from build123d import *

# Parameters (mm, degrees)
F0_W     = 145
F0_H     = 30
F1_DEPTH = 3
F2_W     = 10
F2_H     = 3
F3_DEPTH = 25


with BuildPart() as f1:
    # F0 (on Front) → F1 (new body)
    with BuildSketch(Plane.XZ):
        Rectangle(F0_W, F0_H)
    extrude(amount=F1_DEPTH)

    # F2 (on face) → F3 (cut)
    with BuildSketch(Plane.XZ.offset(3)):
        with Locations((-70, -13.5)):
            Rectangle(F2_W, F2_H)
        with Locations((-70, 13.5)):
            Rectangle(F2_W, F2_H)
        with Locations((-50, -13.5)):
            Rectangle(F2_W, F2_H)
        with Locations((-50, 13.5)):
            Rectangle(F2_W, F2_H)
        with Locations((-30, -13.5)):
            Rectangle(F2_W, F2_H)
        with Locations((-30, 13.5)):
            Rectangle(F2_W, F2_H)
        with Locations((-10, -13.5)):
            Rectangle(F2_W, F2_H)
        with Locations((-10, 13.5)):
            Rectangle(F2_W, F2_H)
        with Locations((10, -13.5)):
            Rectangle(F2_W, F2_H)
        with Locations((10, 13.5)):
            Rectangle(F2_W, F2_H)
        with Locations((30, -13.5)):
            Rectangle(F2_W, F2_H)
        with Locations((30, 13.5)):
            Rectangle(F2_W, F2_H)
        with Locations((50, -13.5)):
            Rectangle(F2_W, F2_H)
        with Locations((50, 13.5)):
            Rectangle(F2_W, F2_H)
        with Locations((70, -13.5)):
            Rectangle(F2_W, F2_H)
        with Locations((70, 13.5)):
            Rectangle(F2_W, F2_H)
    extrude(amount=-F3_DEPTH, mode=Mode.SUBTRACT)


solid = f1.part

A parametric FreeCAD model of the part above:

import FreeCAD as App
import Part
import Sketcher
from FreeCAD import Vector
Q = App.Units.Quantity

doc = App.newDocument("Part")
body = doc.addObject("PartDesign::Body", "Body")

# Sketch on XZ plane
sketch1 = doc.addObject("Sketcher::SketchObject", "Sketch")
body.addObject(sketch1)
sketch1.AttachmentSupport = (doc.XZ_Plane, [""])
sketch1.MapMode = "FlatFace"
sketch1.addGeometry([
    Part.LineSegment(Vector(-72, 15, 0), Vector(-72, -15, 0)),
    Part.LineSegment(Vector(-72, -15, 0), Vector(72, -15, 0)),
    Part.LineSegment(Vector(72, -15, 0), Vector(72, 15, 0)),
    Part.LineSegment(Vector(72, 15, 0), Vector(-72, 15, 0)),
], False)
sketch1.addConstraint([
    Sketcher.Constraint("Coincident", 0, 2, 1, 1),
    Sketcher.Constraint("Coincident", 1, 2, 2, 1),
    Sketcher.Constraint("Coincident", 2, 2, 3, 1),
    Sketcher.Constraint("Coincident", 3, 2, 0, 1),
    Sketcher.Constraint("Vertical", 0),
    Sketcher.Constraint("Horizontal", 1),
    Sketcher.Constraint("Vertical", 2),
    Sketcher.Constraint("Horizontal", 3),
    Sketcher.Constraint("Symmetric", 0, 2, 2, 2, -1, 1),
    Sketcher.Constraint("DistanceX", 1, 1, 1, 2, Q("145 mm")),
    Sketcher.Constraint("DistanceY", 0, 2, 0, 1, Q("30 mm")),
])
pad1 = doc.addObject("PartDesign::Pad", "Pad")
body.addObject(pad1)
pad1.Profile = sketch1
pad1.Length = 3

# Sketch on XZ plane
sketch2 = doc.addObject("Sketcher::SketchObject", "Sketch001")
body.addObject(sketch2)
sketch2.AttachmentSupport = (doc.XZ_Plane, [""])
sketch2.MapMode = "FlatFace"
sketch2.AttachmentOffset = App.Placement(Vector(0, 0, 3), App.Rotation())
sketch2.addGeometry([
    Part.LineSegment(Vector(-75, -12, 0), Vector(-75, -15, 0)),  # 0
    Part.LineSegment(Vector(-75, -15, 0), Vector(-65, -15, 0)),  # 1
    Part.LineSegment(Vector(-65, -15, 0), Vector(-65, -12, 0)),  # 2
    Part.LineSegment(Vector(-65, -12, 0), Vector(-75, -12, 0)),  # 3
    Part.LineSegment(Vector(-75, 15, 0), Vector(-75, 12, 0)),  # 4
    Part.LineSegment(Vector(-75, 12, 0), Vector(-65, 12, 0)),  # 5
    Part.LineSegment(Vector(-65, 12, 0), Vector(-65, 15, 0)),  # 6
    Part.LineSegment(Vector(-65, 15, 0), Vector(-75, 15, 0)),  # 7
    Part.LineSegment(Vector(-55, -12, 0), Vector(-55, -15, 0)),  # 8
    Part.LineSegment(Vector(-55, -15, 0), Vector(-45, -15, 0)),  # 9
    Part.LineSegment(Vector(-45, -15, 0), Vector(-45, -12, 0)),  # 10
    Part.LineSegment(Vector(-45, -12, 0), Vector(-55, -12, 0)),  # 11
    Part.LineSegment(Vector(-55, 15, 0), Vector(-55, 12, 0)),  # 12
    Part.LineSegment(Vector(-55, 12, 0), Vector(-45, 12, 0)),  # 13
    Part.LineSegment(Vector(-45, 12, 0), Vector(-45, 15, 0)),  # 14
    Part.LineSegment(Vector(-45, 15, 0), Vector(-55, 15, 0)),  # 15
    Part.LineSegment(Vector(-35, -12, 0), Vector(-35, -15, 0)),  # 16
    Part.LineSegment(Vector(-35, -15, 0), Vector(-25, -15, 0)),  # 17
    Part.LineSegment(Vector(-25, -15, 0), Vector(-25, -12, 0)),  # 18
    Part.LineSegment(Vector(-25, -12, 0), Vector(-35, -12, 0)),  # 19
    Part.LineSegment(Vector(-35, 15, 0), Vector(-35, 12, 0)),  # 20
    Part.LineSegment(Vector(-35, 12, 0), Vector(-25, 12, 0)),  # 21
    Part.LineSegment(Vector(-25, 12, 0), Vector(-25, 15, 0)),  # 22
    Part.LineSegment(Vector(-25, 15, 0), Vector(-35, 15, 0)),  # 23
    Part.LineSegment(Vector(-15, -12, 0), Vector(-15, -15, 0)),  # 24
    Part.LineSegment(Vector(-15, -15, 0), Vector(-5, -15, 0)),  # 25
    Part.LineSegment(Vector(-5, -15, 0), Vector(-5, -12, 0)),  # 26
    Part.LineSegment(Vector(-5, -12, 0), Vector(-15, -12, 0)),  # 27
    Part.LineSegment(Vector(-15, 15, 0), Vector(-15, 12, 0)),  # 28
    Part.LineSegment(Vector(-15, 12, 0), Vector(-5, 12, 0)),  # 29
    Part.LineSegment(Vector(-5, 12, 0), Vector(-5, 15, 0)),  # 30
    Part.LineSegment(Vector(-5, 15, 0), Vector(-15, 15, 0)),  # 31
    Part.LineSegment(Vector(5, -12, 0), Vector(5, -15, 0)),  # 32
    Part.LineSegment(Vector(5, -15, 0), Vector(15, -15, 0)),  # 33
    Part.LineSegment(Vector(15, -15, 0), Vector(15, -12, 0)),  # 34
    Part.LineSegment(Vector(15, -12, 0), Vector(5, -12, 0)),  # 35
    Part.LineSegment(Vector(5, 15, 0), Vector(5, 12, 0)),  # 36
    Part.LineSegment(Vector(5, 12, 0), Vector(15, 12, 0)),  # 37
    Part.LineSegment(Vector(15, 12, 0), Vector(15, 15, 0)),  # 38
    Part.LineSegment(Vector(15, 15, 0), Vector(5, 15, 0)),  # 39
    Part.LineSegment(Vector(25, -12, 0), Vector(25, -15, 0)),  # 40
    Part.LineSegment(Vector(25, -15, 0), Vector(35, -15, 0)),  # 41
    Part.LineSegment(Vector(35, -15, 0), Vector(35, -12, 0)),  # 42
    Part.LineSegment(Vector(35, -12, 0), Vector(25, -12, 0)),  # 43
    Part.LineSegment(Vector(25, 15, 0), Vector(25, 12, 0)),  # 44
    Part.LineSegment(Vector(25, 12, 0), Vector(35, 12, 0)),  # 45
    Part.LineSegment(Vector(35, 12, 0), Vector(35, 15, 0)),  # 46
    Part.LineSegment(Vector(35, 15, 0), Vector(25, 15, 0)),  # 47
    Part.LineSegment(Vector(45, -12, 0), Vector(45, -15, 0)),  # 48
    Part.LineSegment(Vector(45, -15, 0), Vector(55, -15, 0)),  # 49
    Part.LineSegment(Vector(55, -15, 0), Vector(55, -12, 0)),  # 50
    Part.LineSegment(Vector(55, -12, 0), Vector(45, -12, 0)),  # 51
    Part.LineSegment(Vector(45, 15, 0), Vector(45, 12, 0)),  # 52
    Part.LineSegment(Vector(45, 12, 0), Vector(55, 12, 0)),  # 53
    Part.LineSegment(Vector(55, 12, 0), Vector(55, 15, 0)),  # 54
    Part.LineSegment(Vector(55, 15, 0), Vector(45, 15, 0)),  # 55
    Part.LineSegment(Vector(65, -12, 0), Vector(65, -15, 0)),  # 56
    Part.LineSegment(Vector(65, -15, 0), Vector(75, -15, 0)),  # 57
    Part.LineSegment(Vector(75, -15, 0), Vector(75, -12, 0)),  # 58
    Part.LineSegment(Vector(75, -12, 0), Vector(65, -12, 0)),  # 59
    Part.LineSegment(Vector(65, 15, 0), Vector(65, 12, 0)),  # 60
    Part.LineSegment(Vector(65, 12, 0), Vector(75, 12, 0)),  # 61
    Part.LineSegment(Vector(75, 12, 0), Vector(75, 15, 0)),  # 62
    Part.LineSegment(Vector(75, 15, 0), Vector(65, 15, 0)),  # 63
], False)
sketch2.addConstraint([
    Sketcher.Constraint("Coincident", 0, 2, 1, 1),
    Sketcher.Constraint("Coincident", 1, 2, 2, 1),
    Sketcher.Constraint("Coincident", 2, 2, 3, 1),
    Sketcher.Constraint("Coincident", 3, 2, 0, 1),
    Sketcher.Constraint("Coincident", 4, 2, 5, 1),
    Sketcher.Constraint("Coincident", 5, 2, 6, 1),
    Sketcher.Constraint("Coincident", 6, 2, 7, 1),
    Sketcher.Constraint("Coincident", 7, 2, 4, 1),
    Sketcher.Constraint("Coincident", 8, 2, 9, 1),
    Sketcher.Constraint("Coincident", 9, 2, 10, 1),
    Sketcher.Constraint("Coincident", 10, 2, 11, 1),
    Sketcher.Constraint("Coincident", 11, 2, 8, 1),
    Sketcher.Constraint("Coincident", 12, 2, 13, 1),
    Sketcher.Constraint("Coincident", 13, 2, 14, 1),
    Sketcher.Constraint("Coincident", 14, 2, 15, 1),
    Sketcher.Constraint("Coincident", 15, 2, 12, 1),
    Sketcher.Constraint("Coincident", 16, 2, 17, 1),
    Sketcher.Constraint("Coincident", 17, 2, 18, 1),
    Sketcher.Constraint("Coincident", 18, 2, 19, 1),
    Sketcher.Constraint("Coincident", 19, 2, 16, 1),
    Sketcher.Constraint("Coincident", 20, 2, 21, 1),
    Sketcher.Constraint("Coincident", 21, 2, 22, 1),
    Sketcher.Constraint("Coincident", 22, 2, 23, 1),
    Sketcher.Constraint("Coincident", 23, 2, 20, 1),
    Sketcher.Constraint("Coincident", 24, 2, 25, 1),
    Sketcher.Constraint("Coincident", 25, 2, 26, 1),
    Sketcher.Constraint("Coincident", 26, 2, 27, 1),
    Sketcher.Constraint("Coincident", 27, 2, 24, 1),
    Sketcher.Constraint("Coincident", 28, 2, 29, 1),
    Sketcher.Constraint("Coincident", 29, 2, 30, 1),
    Sketcher.Constraint("Coincident", 30, 2, 31, 1),
    Sketcher.Constraint("Coincident", 31, 2, 28, 1),
    Sketcher.Constraint("Coincident", 32, 2, 33, 1),
    Sketcher.Constraint("Coincident", 33, 2, 34, 1),
    Sketcher.Constraint("Coincident", 34, 2, 35, 1),
    Sketcher.Constraint("Coincident", 35, 2, 32, 1),
    Sketcher.Constraint("Coincident", 36, 2, 37, 1),
    Sketcher.Constraint("Coincident", 37, 2, 38, 1),
    Sketcher.Constraint("Coincident", 38, 2, 39, 1),
    Sketcher.Constraint("Coincident", 39, 2, 36, 1),
    Sketcher.Constraint("Coincident", 40, 2, 41, 1),
    Sketcher.Constraint("Coincident", 41, 2, 42, 1),
    Sketcher.Constraint("Coincident", 42, 2, 43, 1),
    Sketcher.Constraint("Coincident", 43, 2, 40, 1),
    Sketcher.Constraint("Coincident", 44, 2, 45, 1),
    Sketcher.Constraint("Coincident", 45, 2, 46, 1),
    Sketcher.Constraint("Coincident", 46, 2, 47, 1),
    Sketcher.Constraint("Coincident", 47, 2, 44, 1),
    Sketcher.Constraint("Coincident", 48, 2, 49, 1),
    Sketcher.Constraint("Coincident", 49, 2, 50, 1),
    Sketcher.Constraint("Coincident", 50, 2, 51, 1),
    Sketcher.Constraint("Coincident", 51, 2, 48, 1),
    Sketcher.Constraint("Coincident", 52, 2, 53, 1),
    Sketcher.Constraint("Coincident", 53, 2, 54, 1),
    Sketcher.Constraint("Coincident", 54, 2, 55, 1),
    Sketcher.Constraint("Coincident", 55, 2, 52, 1),
    Sketcher.Constraint("Coincident", 56, 2, 57, 1),
    Sketcher.Constraint("Coincident", 57, 2, 58, 1),
    Sketcher.Constraint("Coincident", 58, 2, 59, 1),
    Sketcher.Constraint("Coincident", 59, 2, 56, 1),
    Sketcher.Constraint("Coincident", 60, 2, 61, 1),
    Sketcher.Constraint("Coincident", 61, 2, 62, 1),
    Sketcher.Constraint("Coincident", 62, 2, 63, 1),
    Sketcher.Constraint("Coincident", 63, 2, 60, 1),
    Sketcher.Constraint("Vertical", 0),
    Sketcher.Constraint("Horizontal", 1),
    Sketcher.Constraint("Vertical", 2),
    Sketcher.Constraint("Horizontal", 3),
    Sketcher.Constraint("Vertical", 4),
    Sketcher.Constraint("Horizontal", 5),
    Sketcher.Constraint("Vertical", 6),
    Sketcher.Constraint("Horizontal", 7),
    Sketcher.Constraint("Vertical", 8),
    Sketcher.Constraint("Horizontal", 9),
    Sketcher.Constraint("Vertical", 10),
    Sketcher.Constraint("Horizontal", 11),
    Sketcher.Constraint("Vertical", 12),
    Sketcher.Constraint("Horizontal", 13),
    Sketcher.Constraint("Vertical", 14),
    Sketcher.Constraint("Horizontal", 15),
    Sketcher.Constraint("Vertical", 16),
    Sketcher.Constraint("Horizontal", 17),
    Sketcher.Constraint("Vertical", 18),
    Sketcher.Constraint("Horizontal", 19),
    Sketcher.Constraint("Vertical", 20),
    Sketcher.Constraint("Horizontal", 21),
    Sketcher.Constraint("Vertical", 22),
    Sketcher.Constraint("Horizontal", 23),
    Sketcher.Constraint("Vertical", 24),
    Sketcher.Constraint("Horizontal", 25),
    Sketcher.Constraint("Vertical", 26),
    Sketcher.Constraint("Horizontal", 27),
    Sketcher.Constraint("Vertical", 28),
    Sketcher.Constraint("Horizontal", 29),
    Sketcher.Constraint("Vertical", 30),
    Sketcher.Constraint("Horizontal", 31),
    Sketcher.Constraint("Vertical", 32),
    Sketcher.Constraint("Horizontal", 33),
    Sketcher.Constraint("Vertical", 34),
    Sketcher.Constraint("Horizontal", 35),
    Sketcher.Constraint("Vertical", 36),
    Sketcher.Constraint("Horizontal", 37),
    Sketcher.Constraint("Vertical", 38),
    Sketcher.Constraint("Horizontal", 39),
    Sketcher.Constraint("Vertical", 40),
    Sketcher.Constraint("Horizontal", 41),
    Sketcher.Constraint("Vertical", 42),
    Sketcher.Constraint("Horizontal", 43),
    Sketcher.Constraint("Vertical", 44),
    Sketcher.Constraint("Horizontal", 45),
    Sketcher.Constraint("Vertical", 46),
    Sketcher.Constraint("Horizontal", 47),
    Sketcher.Constraint("Vertical", 48),
    Sketcher.Constraint("Horizontal", 49),
    Sketcher.Constraint("Vertical", 50),
    Sketcher.Constraint("Horizontal", 51),
    Sketcher.Constraint("Vertical", 52),
    Sketcher.Constraint("Horizontal", 53),
    Sketcher.Constraint("Vertical", 54),
    Sketcher.Constraint("Horizontal", 55),
    Sketcher.Constraint("Vertical", 56),
    Sketcher.Constraint("Horizontal", 57),
    Sketcher.Constraint("Vertical", 58),
    Sketcher.Constraint("Horizontal", 59),
    Sketcher.Constraint("Vertical", 60),
    Sketcher.Constraint("Horizontal", 61),
    Sketcher.Constraint("Vertical", 62),
    Sketcher.Constraint("Horizontal", 63),
    Sketcher.Constraint("Symmetric", 30, 2, 32, 2, -1, 1),
    Sketcher.Constraint("Symmetric", 28, 2, 34, 2, -1, 1),
    Sketcher.Constraint("Symmetric", 26, 2, 36, 2, -1, 1),
    Sketcher.Constraint("Symmetric", 24, 2, 38, 2, -1, 1),
    Sketcher.Constraint("Symmetric", 22, 2, 40, 2, -1, 1),
    Sketcher.Constraint("Symmetric", 20, 2, 42, 2, -1, 1),
    Sketcher.Constraint("Symmetric", 18, 2, 44, 2, -1, 1),
    Sketcher.Constraint("Symmetric", 16, 2, 46, 2, -1, 1),
    Sketcher.Constraint("Symmetric", 14, 2, 48, 2, -1, 1),
    Sketcher.Constraint("Symmetric", 12, 2, 50, 2, -1, 1),
    Sketcher.Constraint("Symmetric", 10, 2, 52, 2, -1, 1),
    Sketcher.Constraint("Symmetric", 8, 2, 54, 2, -1, 1),
    Sketcher.Constraint("Symmetric", 6, 2, 56, 2, -1, 1),
    Sketcher.Constraint("Symmetric", 4, 2, 58, 2, -1, 1),
    Sketcher.Constraint("Symmetric", 2, 2, 60, 2, -1, 1),
    Sketcher.Constraint("Symmetric", 0, 2, 62, 2, -1, 1),
    Sketcher.Constraint("Symmetric", 25, 2, 32, 2, -2),
    Sketcher.Constraint("Symmetric", 27, 2, 34, 2, -2),
    Sketcher.Constraint("Symmetric", 17, 2, 40, 2, -2),
    Sketcher.Constraint("Symmetric", 19, 2, 42, 2, -2),
    Sketcher.Constraint("Symmetric", 9, 2, 48, 2, -2),
    Sketcher.Constraint("Symmetric", 11, 2, 50, 2, -2),
    Sketcher.Constraint("Symmetric", 1, 2, 56, 2, -2),
    Sketcher.Constraint("Symmetric", 3, 2, 58, 2, -2),
    Sketcher.Constraint("Horizontal", 1, 2, 8, 2),
    Sketcher.Constraint("Horizontal", 3, 2, 10, 2),
    Sketcher.Constraint("Horizontal", 9, 2, 16, 2),
    Sketcher.Constraint("Horizontal", 11, 2, 18, 2),
    Sketcher.Constraint("Horizontal", 17, 2, 24, 2),
    Sketcher.Constraint("Horizontal", 19, 2, 26, 2),
    Sketcher.Constraint("Equal", 7, 9),
    Sketcher.Constraint("Equal", 15, 17),
    Sketcher.Constraint("Equal", 23, 25),
    Sketcher.Constraint("DistanceX", 1, 1, 1, 2, Q("10 mm")),
    Sketcher.Constraint("DistanceY", 0, 2, 0, 1, Q("3 mm")),
    Sketcher.Constraint("DistanceX", 0, 2, -1, 1, Q("75 mm")),
    Sketcher.Constraint("DistanceY", 0, 2, -1, 1, Q("15 mm")),
    Sketcher.Constraint("DistanceX", 8, 2, -1, 1, Q("55 mm")),
    Sketcher.Constraint("DistanceX", 16, 2, -1, 1, Q("35 mm")),
    Sketcher.Constraint("DistanceX", 24, 2, -1, 1, Q("15 mm")),
])
pocket1 = doc.addObject("PartDesign::Pocket", "Pocket")
body.addObject(pocket1)
pocket1.Profile = sketch2
pocket1.Length = 25

doc.recompute()
